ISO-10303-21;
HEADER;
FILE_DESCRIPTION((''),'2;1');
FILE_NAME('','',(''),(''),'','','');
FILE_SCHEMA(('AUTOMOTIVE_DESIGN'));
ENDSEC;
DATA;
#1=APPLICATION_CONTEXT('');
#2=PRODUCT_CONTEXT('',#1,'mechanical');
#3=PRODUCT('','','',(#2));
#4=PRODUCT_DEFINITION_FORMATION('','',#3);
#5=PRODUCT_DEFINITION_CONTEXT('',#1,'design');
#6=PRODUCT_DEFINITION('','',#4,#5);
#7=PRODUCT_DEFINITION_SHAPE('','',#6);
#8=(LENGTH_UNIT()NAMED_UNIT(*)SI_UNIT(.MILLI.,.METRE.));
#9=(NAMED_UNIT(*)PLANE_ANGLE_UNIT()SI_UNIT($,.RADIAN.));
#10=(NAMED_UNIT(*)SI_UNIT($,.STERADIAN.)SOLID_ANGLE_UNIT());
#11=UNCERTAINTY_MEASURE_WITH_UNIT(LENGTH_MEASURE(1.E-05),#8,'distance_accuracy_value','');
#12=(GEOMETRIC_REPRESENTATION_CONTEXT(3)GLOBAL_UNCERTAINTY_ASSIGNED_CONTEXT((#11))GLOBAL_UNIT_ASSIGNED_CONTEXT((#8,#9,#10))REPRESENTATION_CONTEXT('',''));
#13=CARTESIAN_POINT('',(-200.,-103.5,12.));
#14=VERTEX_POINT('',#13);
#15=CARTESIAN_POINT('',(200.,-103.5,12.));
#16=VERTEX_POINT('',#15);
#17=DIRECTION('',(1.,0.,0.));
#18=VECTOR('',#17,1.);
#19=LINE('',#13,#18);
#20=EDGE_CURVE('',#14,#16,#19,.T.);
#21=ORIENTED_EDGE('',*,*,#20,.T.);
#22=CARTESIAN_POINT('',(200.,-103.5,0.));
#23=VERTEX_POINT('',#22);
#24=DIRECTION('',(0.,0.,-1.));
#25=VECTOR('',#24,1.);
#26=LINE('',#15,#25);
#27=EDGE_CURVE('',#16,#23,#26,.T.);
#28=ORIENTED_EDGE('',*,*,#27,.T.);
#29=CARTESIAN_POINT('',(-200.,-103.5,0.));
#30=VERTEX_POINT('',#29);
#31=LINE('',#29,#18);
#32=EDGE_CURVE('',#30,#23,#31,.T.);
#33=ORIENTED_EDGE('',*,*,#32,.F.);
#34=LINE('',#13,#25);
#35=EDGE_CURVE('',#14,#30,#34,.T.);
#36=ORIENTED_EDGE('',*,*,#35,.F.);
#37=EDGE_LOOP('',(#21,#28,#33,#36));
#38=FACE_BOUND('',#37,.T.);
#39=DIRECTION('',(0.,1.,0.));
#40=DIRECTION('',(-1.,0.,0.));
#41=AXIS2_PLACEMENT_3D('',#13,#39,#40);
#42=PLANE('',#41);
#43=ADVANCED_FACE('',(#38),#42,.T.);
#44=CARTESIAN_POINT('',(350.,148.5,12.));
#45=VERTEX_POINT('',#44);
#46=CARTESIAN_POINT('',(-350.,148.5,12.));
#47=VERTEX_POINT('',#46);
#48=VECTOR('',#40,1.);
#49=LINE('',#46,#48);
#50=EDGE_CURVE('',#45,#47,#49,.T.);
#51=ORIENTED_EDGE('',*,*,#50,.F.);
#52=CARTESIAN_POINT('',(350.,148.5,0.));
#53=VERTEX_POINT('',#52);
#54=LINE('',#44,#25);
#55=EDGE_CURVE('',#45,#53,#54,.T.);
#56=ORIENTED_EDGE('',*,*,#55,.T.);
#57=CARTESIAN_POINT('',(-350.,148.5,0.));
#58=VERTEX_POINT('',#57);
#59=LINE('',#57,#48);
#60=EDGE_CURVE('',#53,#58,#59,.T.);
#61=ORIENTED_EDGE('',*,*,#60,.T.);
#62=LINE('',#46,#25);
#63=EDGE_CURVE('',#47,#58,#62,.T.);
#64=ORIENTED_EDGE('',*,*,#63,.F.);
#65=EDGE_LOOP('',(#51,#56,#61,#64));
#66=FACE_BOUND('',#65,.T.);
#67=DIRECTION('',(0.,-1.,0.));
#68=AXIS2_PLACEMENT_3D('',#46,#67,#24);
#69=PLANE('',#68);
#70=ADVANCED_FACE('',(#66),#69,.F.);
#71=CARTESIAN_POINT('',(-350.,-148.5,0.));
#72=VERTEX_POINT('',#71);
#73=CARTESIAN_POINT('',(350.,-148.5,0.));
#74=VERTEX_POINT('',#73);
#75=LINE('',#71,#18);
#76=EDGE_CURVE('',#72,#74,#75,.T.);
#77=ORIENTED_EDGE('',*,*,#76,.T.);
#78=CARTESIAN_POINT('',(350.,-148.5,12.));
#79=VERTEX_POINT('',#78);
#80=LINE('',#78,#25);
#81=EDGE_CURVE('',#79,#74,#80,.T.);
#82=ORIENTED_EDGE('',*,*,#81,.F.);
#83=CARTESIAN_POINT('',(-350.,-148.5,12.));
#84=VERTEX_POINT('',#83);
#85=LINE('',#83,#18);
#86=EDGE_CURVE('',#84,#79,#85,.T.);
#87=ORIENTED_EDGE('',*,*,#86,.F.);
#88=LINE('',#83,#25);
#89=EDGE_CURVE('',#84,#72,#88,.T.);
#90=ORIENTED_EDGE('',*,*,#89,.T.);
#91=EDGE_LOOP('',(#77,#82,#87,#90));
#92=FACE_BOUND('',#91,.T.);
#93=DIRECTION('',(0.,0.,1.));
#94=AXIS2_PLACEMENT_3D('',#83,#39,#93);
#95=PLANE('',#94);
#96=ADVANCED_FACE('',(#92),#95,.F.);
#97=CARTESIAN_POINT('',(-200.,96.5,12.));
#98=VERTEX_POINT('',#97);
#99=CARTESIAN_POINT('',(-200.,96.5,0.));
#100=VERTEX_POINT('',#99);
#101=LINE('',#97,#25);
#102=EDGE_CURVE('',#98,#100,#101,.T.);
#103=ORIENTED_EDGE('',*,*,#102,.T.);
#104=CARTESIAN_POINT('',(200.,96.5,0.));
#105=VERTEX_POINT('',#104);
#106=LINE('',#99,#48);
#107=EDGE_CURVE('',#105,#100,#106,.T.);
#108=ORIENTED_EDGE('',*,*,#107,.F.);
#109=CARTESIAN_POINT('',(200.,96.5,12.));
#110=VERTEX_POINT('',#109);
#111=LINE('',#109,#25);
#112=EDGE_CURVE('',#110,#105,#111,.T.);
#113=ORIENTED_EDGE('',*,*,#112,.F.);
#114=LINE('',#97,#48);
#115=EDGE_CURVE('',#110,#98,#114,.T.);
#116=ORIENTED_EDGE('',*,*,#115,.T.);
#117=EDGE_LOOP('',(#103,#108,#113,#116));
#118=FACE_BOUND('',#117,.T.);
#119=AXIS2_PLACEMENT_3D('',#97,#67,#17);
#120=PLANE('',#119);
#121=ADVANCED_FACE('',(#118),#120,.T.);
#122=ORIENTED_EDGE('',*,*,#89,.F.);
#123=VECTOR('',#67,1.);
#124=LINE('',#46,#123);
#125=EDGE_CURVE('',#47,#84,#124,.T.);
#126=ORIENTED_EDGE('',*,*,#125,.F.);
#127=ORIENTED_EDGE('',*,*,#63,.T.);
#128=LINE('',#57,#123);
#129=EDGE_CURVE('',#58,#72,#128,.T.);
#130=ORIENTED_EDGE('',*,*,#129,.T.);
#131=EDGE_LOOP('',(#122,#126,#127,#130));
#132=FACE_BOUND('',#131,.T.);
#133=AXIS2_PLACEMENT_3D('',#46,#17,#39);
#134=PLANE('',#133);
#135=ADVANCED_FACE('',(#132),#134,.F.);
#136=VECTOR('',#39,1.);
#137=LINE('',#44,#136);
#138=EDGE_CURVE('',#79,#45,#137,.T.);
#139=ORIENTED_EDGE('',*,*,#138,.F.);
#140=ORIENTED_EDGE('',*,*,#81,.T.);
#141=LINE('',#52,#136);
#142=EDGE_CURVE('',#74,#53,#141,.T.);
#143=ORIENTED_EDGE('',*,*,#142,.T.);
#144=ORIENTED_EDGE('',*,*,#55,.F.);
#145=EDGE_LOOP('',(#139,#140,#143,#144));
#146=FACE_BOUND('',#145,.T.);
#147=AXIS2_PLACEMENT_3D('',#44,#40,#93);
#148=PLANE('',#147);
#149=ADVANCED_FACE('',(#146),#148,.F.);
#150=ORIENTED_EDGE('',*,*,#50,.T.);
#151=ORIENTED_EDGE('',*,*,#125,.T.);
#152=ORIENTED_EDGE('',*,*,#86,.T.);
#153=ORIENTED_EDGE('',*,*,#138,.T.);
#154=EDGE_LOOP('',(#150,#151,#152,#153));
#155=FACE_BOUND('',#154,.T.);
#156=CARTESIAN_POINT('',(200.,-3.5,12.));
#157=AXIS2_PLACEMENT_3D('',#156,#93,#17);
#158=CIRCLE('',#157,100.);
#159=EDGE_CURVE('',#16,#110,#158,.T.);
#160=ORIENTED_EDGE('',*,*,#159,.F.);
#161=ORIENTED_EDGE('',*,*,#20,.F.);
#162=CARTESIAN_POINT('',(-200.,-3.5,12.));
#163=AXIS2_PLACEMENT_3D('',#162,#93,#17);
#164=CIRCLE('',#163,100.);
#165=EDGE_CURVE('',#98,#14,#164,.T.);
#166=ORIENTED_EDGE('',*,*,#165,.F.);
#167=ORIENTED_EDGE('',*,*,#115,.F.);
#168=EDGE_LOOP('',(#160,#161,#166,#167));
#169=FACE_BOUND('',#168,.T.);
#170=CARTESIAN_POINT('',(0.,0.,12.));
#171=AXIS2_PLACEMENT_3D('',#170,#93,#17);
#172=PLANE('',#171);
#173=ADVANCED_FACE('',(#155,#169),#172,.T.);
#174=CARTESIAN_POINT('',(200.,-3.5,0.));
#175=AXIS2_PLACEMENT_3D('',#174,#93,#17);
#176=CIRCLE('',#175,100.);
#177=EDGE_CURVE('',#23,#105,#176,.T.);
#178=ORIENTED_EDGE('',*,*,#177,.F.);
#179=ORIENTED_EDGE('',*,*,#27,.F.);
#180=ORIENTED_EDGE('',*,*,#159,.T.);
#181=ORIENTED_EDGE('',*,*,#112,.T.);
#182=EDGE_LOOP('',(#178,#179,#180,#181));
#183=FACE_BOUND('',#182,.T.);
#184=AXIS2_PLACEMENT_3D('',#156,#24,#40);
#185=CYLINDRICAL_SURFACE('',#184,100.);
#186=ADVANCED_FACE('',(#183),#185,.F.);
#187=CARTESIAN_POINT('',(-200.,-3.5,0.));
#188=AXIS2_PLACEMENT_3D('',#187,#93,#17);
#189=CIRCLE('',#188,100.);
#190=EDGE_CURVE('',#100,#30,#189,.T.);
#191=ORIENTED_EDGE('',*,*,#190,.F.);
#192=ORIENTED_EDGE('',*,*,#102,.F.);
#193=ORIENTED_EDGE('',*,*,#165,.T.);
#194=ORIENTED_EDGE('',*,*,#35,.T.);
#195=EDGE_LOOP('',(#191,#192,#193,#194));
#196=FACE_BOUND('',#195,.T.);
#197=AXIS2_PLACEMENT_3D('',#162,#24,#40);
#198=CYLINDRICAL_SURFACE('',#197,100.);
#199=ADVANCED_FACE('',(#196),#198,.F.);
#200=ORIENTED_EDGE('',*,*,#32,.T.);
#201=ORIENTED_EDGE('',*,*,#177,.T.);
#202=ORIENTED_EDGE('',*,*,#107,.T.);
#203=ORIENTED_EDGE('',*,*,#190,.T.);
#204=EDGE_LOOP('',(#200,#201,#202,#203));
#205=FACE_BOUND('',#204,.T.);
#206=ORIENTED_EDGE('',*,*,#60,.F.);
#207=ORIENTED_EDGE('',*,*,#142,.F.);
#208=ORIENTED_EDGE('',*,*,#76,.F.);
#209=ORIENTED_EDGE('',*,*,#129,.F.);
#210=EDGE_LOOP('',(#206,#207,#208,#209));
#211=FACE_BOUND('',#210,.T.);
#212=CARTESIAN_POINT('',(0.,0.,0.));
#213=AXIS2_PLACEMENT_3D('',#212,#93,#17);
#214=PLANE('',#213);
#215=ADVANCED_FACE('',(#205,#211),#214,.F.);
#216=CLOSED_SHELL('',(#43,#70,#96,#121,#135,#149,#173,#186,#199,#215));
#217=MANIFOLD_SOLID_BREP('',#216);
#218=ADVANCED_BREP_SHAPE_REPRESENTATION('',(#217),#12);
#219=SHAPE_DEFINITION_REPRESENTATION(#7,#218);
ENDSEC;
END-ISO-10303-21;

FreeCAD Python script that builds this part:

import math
import FreeCAD as App
import Part
import Sketcher

V = App.Vector


def add_polygon(sketch, points):
    """Adds a closed chain of lines whose ends are joined by coincident constraints."""
    first, n = sketch.GeometryCount, len(points)
    for a, b in zip(points, points[1:] + points[:1]):
        sketch.addGeometry(Part.LineSegment(App.Vector(*a, 0), App.Vector(*b, 0)), False)
    for i in range(n):
        sketch.addConstraint(Sketcher.Constraint("Coincident", first + i, 2, first + (i + 1) % n, 1))

doc = App.newDocument("Part")
body = doc.addObject("PartDesign::Body", "Body")

sketch1 = body.newObject("Sketcher::SketchObject", "Sketch")
sketch1.AttachmentSupport = (doc.getObject("XY_Plane"), [""])
sketch1.MapMode = "FlatFace"
add_polygon(sketch1, [(-350, 148.5), (-350, -148.5), (350, -148.5), (350, 148.5)])
sketch1.addGeometry(Part.ArcOfCircle(Part.Circle(V(-200, -3.5, 0), V(0, 0, 1), 100), math.radians(90), math.radians(270)), False)
sketch1.addGeometry(Part.LineSegment(V(-200, 96.5, 0), V(200, 96.5, 0)), False)
sketch1.addGeometry(Part.ArcOfCircle(Part.Circle(V(200, -3.5, 0), V(0, 0, 1), 100), math.radians(-90), math.radians(90)), False)
sketch1.addGeometry(Part.LineSegment(V(200, -103.5, 0), V(-200, -103.5, 0)), False)
sketch1.addConstraint(Sketcher.Constraint("Tangent", 4, 1, 5, 1))
sketch1.addConstraint(Sketcher.Constraint("Tangent", 5, 2, 6, 2))
sketch1.addConstraint(Sketcher.Constraint("Tangent", 6, 1, 7, 1))
sketch1.addConstraint(Sketcher.Constraint("Tangent", 7, 2, 4, 2))
sketch1.addConstraint(Sketcher.Constraint("Vertical", 0))
sketch1.addConstraint(Sketcher.Constraint("Horizontal", 1))
sketch1.addConstraint(Sketcher.Constraint("Vertical", 2))
sketch1.addConstraint(Sketcher.Constraint("Horizontal", 3))
sketch1.addConstraint(Sketcher.Constraint("Horizontal", 5))
sketch1.addConstraint(Sketcher.Constraint("Horizontal", 7))
sketch1.addConstraint(Sketcher.Constraint("Symmetric", 0, 2, 2, 2, -1, 1))
sketch1.addConstraint(Sketcher.Constraint("Radius", 4, 100.0))
sketch1.addConstraint(Sketcher.Constraint("DistanceX", 1, 1, 1, 2, 700.0))
sketch1.addConstraint(Sketcher.Constraint("DistanceX", 5, 1, 5, 2, 400.0))
sketch1.addConstraint(Sketcher.Constraint("DistanceY", 0, 2, 0, 1, 297.0))
sketch1.addConstraint(Sketcher.Constraint("DistanceX", 4, 3, -1, 1, 200.0))
sketch1.addConstraint(Sketcher.Constraint("DistanceY", 0, 2, 4, 3, 145.0))
pad1 = body.newObject("PartDesign::Pad", "Pad")
pad1.Profile = sketch1
pad1.Length = 12

doc.recompute()
